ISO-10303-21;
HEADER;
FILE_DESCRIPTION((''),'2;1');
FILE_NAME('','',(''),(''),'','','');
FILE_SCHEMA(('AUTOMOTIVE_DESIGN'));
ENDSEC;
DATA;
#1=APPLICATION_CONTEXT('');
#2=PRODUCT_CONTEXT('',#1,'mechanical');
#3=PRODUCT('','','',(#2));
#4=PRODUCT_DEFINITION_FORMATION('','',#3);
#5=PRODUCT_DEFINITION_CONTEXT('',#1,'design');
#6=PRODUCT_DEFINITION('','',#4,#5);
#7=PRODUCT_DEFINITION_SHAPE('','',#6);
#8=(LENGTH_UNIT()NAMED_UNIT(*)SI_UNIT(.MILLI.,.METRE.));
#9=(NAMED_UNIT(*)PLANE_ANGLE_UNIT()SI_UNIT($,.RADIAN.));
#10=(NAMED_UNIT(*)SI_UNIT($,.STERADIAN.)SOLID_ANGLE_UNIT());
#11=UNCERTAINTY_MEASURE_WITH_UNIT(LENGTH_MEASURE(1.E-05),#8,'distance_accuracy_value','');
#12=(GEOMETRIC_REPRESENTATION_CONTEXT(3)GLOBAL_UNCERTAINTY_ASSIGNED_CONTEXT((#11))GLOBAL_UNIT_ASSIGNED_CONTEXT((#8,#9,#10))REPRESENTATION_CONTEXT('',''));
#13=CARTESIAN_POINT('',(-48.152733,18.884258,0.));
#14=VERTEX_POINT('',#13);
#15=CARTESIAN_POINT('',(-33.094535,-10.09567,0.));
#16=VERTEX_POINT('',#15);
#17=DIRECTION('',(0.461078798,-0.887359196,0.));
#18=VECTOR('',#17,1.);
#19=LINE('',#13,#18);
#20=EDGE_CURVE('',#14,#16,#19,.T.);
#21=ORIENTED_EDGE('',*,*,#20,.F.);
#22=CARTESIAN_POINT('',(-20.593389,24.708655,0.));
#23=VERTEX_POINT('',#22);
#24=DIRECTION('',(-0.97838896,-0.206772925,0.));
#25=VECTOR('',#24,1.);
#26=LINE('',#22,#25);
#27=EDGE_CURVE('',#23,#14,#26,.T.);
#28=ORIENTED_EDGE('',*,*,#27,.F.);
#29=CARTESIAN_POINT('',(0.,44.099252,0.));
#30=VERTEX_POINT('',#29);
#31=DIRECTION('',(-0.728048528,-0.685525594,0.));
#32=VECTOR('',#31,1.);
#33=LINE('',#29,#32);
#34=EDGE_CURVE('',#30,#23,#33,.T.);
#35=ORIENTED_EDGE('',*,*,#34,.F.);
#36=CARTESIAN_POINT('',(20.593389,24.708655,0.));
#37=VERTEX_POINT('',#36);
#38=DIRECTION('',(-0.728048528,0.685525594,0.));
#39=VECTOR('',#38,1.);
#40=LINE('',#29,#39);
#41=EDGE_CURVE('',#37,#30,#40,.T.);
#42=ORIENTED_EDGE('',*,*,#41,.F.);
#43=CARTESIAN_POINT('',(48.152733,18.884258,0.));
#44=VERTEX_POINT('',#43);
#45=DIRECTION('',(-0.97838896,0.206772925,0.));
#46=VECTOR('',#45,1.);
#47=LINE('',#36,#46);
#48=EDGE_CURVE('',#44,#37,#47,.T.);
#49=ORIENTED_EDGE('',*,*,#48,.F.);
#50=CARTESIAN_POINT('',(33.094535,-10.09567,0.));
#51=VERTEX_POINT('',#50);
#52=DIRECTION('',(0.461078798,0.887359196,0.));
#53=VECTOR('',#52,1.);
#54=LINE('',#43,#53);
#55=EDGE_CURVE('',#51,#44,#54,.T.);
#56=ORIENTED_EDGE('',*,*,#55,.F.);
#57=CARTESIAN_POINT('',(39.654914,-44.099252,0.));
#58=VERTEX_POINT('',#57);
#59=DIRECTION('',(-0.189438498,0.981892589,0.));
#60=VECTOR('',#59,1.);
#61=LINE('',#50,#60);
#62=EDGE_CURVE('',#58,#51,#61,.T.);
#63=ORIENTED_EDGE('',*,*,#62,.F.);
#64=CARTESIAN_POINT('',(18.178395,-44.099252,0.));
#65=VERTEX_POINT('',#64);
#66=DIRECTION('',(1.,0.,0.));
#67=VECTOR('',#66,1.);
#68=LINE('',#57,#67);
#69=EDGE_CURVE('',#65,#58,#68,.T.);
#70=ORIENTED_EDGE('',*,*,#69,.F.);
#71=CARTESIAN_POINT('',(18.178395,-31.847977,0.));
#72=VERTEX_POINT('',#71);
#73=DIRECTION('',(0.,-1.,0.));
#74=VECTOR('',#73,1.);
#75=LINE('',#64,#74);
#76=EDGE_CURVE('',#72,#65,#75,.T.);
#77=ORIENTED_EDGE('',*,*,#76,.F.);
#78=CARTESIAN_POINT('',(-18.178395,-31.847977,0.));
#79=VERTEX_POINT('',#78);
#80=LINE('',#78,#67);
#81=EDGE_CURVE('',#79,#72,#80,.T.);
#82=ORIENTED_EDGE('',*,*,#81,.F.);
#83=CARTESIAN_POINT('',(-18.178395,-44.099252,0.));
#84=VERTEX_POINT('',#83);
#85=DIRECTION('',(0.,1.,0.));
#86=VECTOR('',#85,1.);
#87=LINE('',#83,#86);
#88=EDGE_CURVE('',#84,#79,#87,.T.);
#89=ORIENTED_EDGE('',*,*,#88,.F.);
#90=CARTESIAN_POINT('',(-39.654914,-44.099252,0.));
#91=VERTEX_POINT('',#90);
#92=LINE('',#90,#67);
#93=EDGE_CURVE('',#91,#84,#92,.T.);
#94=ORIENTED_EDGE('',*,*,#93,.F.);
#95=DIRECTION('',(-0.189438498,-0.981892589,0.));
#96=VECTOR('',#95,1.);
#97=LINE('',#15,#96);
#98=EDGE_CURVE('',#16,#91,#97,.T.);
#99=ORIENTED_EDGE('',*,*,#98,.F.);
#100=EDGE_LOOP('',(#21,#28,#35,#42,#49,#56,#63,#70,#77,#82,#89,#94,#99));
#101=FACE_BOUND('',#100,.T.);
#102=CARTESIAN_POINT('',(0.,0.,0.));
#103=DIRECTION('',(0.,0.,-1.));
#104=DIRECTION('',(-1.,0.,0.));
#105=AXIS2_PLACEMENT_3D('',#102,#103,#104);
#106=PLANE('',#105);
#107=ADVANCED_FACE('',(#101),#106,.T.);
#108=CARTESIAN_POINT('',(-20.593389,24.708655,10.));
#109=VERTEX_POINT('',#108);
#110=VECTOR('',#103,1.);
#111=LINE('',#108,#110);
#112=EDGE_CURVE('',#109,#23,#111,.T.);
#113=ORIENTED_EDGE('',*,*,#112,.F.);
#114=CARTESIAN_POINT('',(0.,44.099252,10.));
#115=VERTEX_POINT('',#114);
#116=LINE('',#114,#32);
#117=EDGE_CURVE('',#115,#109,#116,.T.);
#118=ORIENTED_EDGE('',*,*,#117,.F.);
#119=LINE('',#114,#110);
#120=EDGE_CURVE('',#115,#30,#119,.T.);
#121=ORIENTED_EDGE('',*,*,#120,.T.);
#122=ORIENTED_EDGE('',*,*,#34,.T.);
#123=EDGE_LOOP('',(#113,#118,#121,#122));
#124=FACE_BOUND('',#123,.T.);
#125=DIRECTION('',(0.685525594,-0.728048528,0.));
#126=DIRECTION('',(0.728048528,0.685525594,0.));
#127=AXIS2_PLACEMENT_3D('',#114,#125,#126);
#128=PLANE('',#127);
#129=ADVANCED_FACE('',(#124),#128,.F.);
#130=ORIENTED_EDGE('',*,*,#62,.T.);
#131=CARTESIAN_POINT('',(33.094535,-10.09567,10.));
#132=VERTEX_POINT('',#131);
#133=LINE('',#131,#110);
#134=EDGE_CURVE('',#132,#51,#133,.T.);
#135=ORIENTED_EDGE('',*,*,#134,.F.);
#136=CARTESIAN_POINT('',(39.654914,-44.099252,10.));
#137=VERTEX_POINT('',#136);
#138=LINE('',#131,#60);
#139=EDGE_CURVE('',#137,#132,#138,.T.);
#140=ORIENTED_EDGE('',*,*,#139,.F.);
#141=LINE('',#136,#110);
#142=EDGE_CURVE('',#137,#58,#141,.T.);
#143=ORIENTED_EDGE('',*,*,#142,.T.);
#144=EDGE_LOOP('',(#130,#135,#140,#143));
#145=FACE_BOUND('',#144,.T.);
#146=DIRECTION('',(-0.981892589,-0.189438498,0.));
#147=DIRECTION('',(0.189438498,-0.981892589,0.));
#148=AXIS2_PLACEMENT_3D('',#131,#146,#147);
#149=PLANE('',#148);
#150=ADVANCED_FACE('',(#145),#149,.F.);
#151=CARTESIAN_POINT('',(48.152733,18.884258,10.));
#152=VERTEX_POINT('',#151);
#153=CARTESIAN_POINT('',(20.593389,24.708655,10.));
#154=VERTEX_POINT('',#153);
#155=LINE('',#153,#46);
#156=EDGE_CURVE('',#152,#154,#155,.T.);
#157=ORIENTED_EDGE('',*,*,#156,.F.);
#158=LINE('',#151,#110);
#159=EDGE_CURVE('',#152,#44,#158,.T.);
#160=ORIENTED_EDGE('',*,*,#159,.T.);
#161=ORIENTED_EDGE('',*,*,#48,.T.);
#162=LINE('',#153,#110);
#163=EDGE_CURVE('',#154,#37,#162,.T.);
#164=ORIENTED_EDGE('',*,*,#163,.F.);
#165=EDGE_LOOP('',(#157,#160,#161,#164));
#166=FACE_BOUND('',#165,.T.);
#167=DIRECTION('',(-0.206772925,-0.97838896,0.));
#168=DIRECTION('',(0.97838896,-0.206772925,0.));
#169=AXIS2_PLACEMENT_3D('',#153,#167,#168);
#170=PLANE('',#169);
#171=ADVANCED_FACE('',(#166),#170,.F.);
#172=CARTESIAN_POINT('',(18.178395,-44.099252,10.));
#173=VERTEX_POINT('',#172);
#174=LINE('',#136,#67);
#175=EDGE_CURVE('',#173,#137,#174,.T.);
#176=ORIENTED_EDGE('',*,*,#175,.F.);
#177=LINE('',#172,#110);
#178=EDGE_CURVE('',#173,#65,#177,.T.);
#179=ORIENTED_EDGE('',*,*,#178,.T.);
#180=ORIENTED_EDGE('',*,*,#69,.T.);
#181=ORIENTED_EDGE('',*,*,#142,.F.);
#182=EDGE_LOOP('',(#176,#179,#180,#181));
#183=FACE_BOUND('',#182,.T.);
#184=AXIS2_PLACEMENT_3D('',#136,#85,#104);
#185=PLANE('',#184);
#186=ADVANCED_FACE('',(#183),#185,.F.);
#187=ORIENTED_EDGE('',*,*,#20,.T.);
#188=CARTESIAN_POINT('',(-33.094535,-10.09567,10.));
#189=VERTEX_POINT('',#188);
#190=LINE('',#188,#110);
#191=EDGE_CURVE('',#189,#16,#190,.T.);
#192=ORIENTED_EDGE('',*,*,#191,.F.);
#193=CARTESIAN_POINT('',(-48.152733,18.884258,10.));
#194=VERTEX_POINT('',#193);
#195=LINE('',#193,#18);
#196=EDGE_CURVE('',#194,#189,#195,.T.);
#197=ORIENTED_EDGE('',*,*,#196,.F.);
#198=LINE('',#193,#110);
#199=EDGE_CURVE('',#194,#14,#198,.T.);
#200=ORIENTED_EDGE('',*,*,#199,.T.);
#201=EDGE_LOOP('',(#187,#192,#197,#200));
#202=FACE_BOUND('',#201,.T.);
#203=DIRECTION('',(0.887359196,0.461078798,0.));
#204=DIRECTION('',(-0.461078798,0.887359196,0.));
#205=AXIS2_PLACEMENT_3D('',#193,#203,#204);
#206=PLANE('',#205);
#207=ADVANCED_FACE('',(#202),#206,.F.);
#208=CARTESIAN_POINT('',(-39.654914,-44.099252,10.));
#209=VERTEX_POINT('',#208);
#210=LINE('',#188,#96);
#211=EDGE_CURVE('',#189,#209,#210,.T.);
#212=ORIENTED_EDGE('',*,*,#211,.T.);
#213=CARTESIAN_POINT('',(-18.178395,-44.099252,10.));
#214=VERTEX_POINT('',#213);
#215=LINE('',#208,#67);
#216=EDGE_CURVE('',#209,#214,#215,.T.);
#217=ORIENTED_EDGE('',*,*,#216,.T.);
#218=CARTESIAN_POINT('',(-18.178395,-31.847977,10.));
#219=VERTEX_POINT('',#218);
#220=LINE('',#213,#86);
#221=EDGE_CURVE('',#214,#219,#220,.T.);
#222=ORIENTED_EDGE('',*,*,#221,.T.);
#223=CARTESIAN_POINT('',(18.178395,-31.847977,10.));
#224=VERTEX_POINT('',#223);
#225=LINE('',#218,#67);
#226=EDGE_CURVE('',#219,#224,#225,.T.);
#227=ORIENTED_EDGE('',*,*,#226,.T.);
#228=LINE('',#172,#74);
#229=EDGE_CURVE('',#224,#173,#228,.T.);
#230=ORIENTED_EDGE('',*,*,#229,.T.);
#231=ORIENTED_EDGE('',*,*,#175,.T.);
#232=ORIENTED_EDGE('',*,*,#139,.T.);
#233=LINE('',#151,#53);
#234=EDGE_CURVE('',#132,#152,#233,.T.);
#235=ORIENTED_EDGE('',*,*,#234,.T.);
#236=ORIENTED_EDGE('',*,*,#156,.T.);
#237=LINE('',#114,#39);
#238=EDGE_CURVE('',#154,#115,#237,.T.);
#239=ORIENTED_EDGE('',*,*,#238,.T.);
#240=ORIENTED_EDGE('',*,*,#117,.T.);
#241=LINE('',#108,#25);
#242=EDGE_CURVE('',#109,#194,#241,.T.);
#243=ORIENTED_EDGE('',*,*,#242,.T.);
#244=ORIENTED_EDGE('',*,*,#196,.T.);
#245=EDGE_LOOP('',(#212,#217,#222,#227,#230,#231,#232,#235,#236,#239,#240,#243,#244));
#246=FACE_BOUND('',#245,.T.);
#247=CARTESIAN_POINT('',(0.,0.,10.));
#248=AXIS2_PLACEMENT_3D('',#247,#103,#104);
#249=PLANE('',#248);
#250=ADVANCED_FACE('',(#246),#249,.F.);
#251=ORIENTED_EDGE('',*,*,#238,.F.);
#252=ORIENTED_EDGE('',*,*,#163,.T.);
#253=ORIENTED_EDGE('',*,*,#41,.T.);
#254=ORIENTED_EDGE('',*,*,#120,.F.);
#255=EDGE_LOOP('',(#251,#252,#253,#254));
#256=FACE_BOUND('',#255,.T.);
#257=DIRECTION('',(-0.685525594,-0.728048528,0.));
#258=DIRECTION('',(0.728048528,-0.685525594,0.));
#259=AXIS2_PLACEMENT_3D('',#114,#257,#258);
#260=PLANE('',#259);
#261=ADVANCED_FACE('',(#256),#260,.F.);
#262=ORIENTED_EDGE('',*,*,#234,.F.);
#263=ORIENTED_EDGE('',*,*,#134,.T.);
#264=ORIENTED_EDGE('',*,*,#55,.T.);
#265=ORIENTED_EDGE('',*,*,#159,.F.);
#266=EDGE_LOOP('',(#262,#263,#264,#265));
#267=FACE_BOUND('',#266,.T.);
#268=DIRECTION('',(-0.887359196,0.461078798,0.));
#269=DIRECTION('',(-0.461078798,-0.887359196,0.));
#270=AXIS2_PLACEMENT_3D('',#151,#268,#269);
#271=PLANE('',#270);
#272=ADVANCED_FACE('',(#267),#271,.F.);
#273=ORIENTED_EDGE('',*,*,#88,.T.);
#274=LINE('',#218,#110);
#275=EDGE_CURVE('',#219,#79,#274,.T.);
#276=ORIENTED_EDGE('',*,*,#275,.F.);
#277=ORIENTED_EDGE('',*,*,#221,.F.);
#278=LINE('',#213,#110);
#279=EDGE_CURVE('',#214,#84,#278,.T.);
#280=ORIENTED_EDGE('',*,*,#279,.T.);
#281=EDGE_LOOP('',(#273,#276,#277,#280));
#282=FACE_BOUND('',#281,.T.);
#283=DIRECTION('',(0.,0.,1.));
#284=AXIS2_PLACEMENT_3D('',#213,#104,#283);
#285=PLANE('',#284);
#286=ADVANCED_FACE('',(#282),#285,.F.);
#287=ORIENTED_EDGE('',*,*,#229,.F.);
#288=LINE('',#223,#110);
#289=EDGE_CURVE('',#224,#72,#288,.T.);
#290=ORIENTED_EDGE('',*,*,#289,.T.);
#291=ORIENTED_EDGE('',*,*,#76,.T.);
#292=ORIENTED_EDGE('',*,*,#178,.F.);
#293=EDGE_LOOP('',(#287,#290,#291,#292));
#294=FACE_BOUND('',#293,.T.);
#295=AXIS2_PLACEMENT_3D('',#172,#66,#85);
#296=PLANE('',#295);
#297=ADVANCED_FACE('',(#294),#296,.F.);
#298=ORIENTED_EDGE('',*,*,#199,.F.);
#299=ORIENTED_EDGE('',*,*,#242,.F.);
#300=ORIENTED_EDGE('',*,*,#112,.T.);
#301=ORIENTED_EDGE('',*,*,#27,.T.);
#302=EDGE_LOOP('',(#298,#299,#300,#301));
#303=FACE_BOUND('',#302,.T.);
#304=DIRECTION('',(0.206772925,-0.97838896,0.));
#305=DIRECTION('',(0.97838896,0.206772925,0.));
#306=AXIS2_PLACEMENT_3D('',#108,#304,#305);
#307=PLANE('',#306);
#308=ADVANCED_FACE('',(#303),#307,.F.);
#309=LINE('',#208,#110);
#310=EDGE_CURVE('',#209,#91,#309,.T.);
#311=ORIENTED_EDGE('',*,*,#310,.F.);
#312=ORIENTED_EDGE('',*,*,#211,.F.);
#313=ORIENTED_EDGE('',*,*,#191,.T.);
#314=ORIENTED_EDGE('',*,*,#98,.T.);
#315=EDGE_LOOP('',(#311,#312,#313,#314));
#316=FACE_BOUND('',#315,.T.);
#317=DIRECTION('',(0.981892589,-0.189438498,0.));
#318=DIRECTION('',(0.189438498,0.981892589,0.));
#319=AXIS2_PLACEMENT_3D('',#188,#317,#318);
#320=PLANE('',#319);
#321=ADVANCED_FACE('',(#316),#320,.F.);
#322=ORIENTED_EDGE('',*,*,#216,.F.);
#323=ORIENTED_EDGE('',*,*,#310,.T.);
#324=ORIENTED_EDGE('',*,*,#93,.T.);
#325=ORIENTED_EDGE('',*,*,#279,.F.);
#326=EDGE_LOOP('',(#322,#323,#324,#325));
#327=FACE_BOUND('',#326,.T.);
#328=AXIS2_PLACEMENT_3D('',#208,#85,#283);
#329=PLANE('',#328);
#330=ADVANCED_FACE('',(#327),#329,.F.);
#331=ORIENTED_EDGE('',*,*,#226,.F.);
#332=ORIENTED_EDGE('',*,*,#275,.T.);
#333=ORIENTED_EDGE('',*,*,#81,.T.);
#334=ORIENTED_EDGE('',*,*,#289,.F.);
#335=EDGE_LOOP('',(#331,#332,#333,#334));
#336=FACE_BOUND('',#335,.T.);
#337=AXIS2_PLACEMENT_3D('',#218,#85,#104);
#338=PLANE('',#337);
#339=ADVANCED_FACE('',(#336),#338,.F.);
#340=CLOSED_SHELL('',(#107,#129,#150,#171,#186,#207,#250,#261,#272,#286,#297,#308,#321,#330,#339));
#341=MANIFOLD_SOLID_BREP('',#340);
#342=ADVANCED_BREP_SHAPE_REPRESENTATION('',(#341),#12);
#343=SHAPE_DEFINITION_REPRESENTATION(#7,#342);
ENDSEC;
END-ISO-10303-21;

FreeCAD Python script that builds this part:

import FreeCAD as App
import Part
import Sketcher
Q = App.Units.Quantity

doc = App.newDocument("Part")
body = doc.addObject("PartDesign::Body", "Body")

# Sketch on XY plane
sketch1 = doc.addObject("Sketcher::SketchObject", "Sketch")
body.addObject(sketch1)
sketch1.AttachmentSupport = (doc.XY_Plane, [""])
sketch1.MapMode = "FlatFace"
sketch1.addGeometry(Part.LineSegment(App.Vector(0, 44, 0), App.Vector(-21, 25, 0)), False)
sketch1.addGeometry(Part.LineSegment(App.Vector(-21, 25, 0), App.Vector(-48, 19, 0)), False)
sketch1.addGeometry(Part.LineSegment(App.Vector(-48, 19, 0), App.Vector(-33, -10, 0)), False)
sketch1.addGeometry(Part.LineSegment(App.Vector(-33, -10, 0), App.Vector(-40, -44, 0)), False)
sketch1.addGeometry(Part.LineSegment(App.Vector(-40, -44, 0), App.Vector(-18, -44, 0)), False)
sketch1.addGeometry(Part.LineSegment(App.Vector(-18, -44, 0), App.Vector(-18, -32, 0)), False)
sketch1.addGeometry(Part.LineSegment(App.Vector(-18, -32, 0), App.Vector(18, -32, 0)), False)
sketch1.addGeometry(Part.LineSegment(App.Vector(18, -32, 0), App.Vector(18, -44, 0)), False)
sketch1.addGeometry(Part.LineSegment(App.Vector(18, -44, 0), App.Vector(40, -44, 0)), False)
sketch1.addGeometry(Part.LineSegment(App.Vector(40, -44, 0), App.Vector(33, -10, 0)), False)
sketch1.addGeometry(Part.LineSegment(App.Vector(33, -10, 0), App.Vector(48, 19, 0)), False)
sketch1.addGeometry(Part.LineSegment(App.Vector(48, 19, 0), App.Vector(21, 25, 0)), False)
sketch1.addGeometry(Part.LineSegment(App.Vector(21, 25, 0), App.Vector(0, 44, 0)), False)
sketch1.addConstraint(Sketcher.Constraint("Coincident", 0, 2, 1, 1))
sketch1.addConstraint(Sketcher.Constraint("Coincident", 1, 2, 2, 1))
sketch1.addConstraint(Sketcher.Constraint("Coincident", 2, 2, 3, 1))
sketch1.addConstraint(Sketcher.Constraint("Coincident", 3, 2, 4, 1))
sketch1.addConstraint(Sketcher.Constraint("Coincident", 4, 2, 5, 1))
sketch1.addConstraint(Sketcher.Constraint("Coincident", 5, 2, 6, 1))
sketch1.addConstraint(Sketcher.Constraint("Coincident", 6, 2, 7, 1))
sketch1.addConstraint(Sketcher.Constraint("Coincident", 7, 2, 8, 1))
sketch1.addConstraint(Sketcher.Constraint("Coincident", 8, 2, 9, 1))
sketch1.addConstraint(Sketcher.Constraint("Coincident", 9, 2, 10, 1))
sketch1.addConstraint(Sketcher.Constraint("Coincident", 10, 2, 11, 1))
sketch1.addConstraint(Sketcher.Constraint("Coincident", 11, 2, 12, 1))
sketch1.addConstraint(Sketcher.Constraint("Coincident", 12, 2, 0, 1))
sketch1.addConstraint(Sketcher.Constraint("Horizontal", 4))
sketch1.addConstraint(Sketcher.Constraint("Vertical", 5))
sketch1.addConstraint(Sketcher.Constraint("Horizontal", 6))
sketch1.addConstraint(Sketcher.Constraint("Vertical", 7))
sketch1.addConstraint(Sketcher.Constraint("Horizontal", 8))
sketch1.addConstraint(Sketcher.Constraint("Symmetric", 4, 2, 7, 2, -2))
sketch1.addConstraint(Sketcher.Constraint("Symmetric", 2, 2, 9, 2, -2))
sketch1.addConstraint(Sketcher.Constraint("Symmetric", 1, 2, 10, 2, -2))
sketch1.addConstraint(Sketcher.Constraint("Symmetric", 0, 2, 11, 2, -2))
sketch1.addConstraint(Sketcher.Constraint("PointOnObject", 12, 2, -2))
sketch1.addConstraint(Sketcher.Constraint("Equal", 4, 8))
sketch1.addConstraint(Sketcher.Constraint("Angle", 3, Q("-100.920017 deg")))
sketch1.addConstraint(Sketcher.Constraint("DistanceX", 4, 1, 4, 2, 21.476519))
sketch1.addConstraint(Sketcher.Constraint("DistanceX", 6, 1, 6, 2, 36.35679))
sketch1.addConstraint(Sketcher.Constraint("DistanceX", 1, 2, 2, 2, 15.058198))
sketch1.addConstraint(Sketcher.Constraint("DistanceY", 5, 1, 5, 2, 12.251275))
sketch1.addConstraint(Sketcher.Constraint("DistanceX", 0, 2, -1, 1, 20.593389))
sketch1.addConstraint(Sketcher.Constraint("DistanceY", -1, 1, 1, 2, 18.884258))
sketch1.addConstraint(Sketcher.Constraint("DistanceY", 2, 2, -1, 1, 10.09567))
sketch1.addConstraint(Sketcher.Constraint("DistanceX", 3, 2, 2, 2, 6.560379))
sketch1.addConstraint(Sketcher.Constraint("Distance", 0, 28.285737))
sketch1.addConstraint(Sketcher.Constraint("Distance", 1, 28.168085))
pad1 = doc.addObject("PartDesign::Pad", "Pad")
body.addObject(pad1)
pad1.Profile = sketch1
pad1.Length = 10

doc.recompute()
